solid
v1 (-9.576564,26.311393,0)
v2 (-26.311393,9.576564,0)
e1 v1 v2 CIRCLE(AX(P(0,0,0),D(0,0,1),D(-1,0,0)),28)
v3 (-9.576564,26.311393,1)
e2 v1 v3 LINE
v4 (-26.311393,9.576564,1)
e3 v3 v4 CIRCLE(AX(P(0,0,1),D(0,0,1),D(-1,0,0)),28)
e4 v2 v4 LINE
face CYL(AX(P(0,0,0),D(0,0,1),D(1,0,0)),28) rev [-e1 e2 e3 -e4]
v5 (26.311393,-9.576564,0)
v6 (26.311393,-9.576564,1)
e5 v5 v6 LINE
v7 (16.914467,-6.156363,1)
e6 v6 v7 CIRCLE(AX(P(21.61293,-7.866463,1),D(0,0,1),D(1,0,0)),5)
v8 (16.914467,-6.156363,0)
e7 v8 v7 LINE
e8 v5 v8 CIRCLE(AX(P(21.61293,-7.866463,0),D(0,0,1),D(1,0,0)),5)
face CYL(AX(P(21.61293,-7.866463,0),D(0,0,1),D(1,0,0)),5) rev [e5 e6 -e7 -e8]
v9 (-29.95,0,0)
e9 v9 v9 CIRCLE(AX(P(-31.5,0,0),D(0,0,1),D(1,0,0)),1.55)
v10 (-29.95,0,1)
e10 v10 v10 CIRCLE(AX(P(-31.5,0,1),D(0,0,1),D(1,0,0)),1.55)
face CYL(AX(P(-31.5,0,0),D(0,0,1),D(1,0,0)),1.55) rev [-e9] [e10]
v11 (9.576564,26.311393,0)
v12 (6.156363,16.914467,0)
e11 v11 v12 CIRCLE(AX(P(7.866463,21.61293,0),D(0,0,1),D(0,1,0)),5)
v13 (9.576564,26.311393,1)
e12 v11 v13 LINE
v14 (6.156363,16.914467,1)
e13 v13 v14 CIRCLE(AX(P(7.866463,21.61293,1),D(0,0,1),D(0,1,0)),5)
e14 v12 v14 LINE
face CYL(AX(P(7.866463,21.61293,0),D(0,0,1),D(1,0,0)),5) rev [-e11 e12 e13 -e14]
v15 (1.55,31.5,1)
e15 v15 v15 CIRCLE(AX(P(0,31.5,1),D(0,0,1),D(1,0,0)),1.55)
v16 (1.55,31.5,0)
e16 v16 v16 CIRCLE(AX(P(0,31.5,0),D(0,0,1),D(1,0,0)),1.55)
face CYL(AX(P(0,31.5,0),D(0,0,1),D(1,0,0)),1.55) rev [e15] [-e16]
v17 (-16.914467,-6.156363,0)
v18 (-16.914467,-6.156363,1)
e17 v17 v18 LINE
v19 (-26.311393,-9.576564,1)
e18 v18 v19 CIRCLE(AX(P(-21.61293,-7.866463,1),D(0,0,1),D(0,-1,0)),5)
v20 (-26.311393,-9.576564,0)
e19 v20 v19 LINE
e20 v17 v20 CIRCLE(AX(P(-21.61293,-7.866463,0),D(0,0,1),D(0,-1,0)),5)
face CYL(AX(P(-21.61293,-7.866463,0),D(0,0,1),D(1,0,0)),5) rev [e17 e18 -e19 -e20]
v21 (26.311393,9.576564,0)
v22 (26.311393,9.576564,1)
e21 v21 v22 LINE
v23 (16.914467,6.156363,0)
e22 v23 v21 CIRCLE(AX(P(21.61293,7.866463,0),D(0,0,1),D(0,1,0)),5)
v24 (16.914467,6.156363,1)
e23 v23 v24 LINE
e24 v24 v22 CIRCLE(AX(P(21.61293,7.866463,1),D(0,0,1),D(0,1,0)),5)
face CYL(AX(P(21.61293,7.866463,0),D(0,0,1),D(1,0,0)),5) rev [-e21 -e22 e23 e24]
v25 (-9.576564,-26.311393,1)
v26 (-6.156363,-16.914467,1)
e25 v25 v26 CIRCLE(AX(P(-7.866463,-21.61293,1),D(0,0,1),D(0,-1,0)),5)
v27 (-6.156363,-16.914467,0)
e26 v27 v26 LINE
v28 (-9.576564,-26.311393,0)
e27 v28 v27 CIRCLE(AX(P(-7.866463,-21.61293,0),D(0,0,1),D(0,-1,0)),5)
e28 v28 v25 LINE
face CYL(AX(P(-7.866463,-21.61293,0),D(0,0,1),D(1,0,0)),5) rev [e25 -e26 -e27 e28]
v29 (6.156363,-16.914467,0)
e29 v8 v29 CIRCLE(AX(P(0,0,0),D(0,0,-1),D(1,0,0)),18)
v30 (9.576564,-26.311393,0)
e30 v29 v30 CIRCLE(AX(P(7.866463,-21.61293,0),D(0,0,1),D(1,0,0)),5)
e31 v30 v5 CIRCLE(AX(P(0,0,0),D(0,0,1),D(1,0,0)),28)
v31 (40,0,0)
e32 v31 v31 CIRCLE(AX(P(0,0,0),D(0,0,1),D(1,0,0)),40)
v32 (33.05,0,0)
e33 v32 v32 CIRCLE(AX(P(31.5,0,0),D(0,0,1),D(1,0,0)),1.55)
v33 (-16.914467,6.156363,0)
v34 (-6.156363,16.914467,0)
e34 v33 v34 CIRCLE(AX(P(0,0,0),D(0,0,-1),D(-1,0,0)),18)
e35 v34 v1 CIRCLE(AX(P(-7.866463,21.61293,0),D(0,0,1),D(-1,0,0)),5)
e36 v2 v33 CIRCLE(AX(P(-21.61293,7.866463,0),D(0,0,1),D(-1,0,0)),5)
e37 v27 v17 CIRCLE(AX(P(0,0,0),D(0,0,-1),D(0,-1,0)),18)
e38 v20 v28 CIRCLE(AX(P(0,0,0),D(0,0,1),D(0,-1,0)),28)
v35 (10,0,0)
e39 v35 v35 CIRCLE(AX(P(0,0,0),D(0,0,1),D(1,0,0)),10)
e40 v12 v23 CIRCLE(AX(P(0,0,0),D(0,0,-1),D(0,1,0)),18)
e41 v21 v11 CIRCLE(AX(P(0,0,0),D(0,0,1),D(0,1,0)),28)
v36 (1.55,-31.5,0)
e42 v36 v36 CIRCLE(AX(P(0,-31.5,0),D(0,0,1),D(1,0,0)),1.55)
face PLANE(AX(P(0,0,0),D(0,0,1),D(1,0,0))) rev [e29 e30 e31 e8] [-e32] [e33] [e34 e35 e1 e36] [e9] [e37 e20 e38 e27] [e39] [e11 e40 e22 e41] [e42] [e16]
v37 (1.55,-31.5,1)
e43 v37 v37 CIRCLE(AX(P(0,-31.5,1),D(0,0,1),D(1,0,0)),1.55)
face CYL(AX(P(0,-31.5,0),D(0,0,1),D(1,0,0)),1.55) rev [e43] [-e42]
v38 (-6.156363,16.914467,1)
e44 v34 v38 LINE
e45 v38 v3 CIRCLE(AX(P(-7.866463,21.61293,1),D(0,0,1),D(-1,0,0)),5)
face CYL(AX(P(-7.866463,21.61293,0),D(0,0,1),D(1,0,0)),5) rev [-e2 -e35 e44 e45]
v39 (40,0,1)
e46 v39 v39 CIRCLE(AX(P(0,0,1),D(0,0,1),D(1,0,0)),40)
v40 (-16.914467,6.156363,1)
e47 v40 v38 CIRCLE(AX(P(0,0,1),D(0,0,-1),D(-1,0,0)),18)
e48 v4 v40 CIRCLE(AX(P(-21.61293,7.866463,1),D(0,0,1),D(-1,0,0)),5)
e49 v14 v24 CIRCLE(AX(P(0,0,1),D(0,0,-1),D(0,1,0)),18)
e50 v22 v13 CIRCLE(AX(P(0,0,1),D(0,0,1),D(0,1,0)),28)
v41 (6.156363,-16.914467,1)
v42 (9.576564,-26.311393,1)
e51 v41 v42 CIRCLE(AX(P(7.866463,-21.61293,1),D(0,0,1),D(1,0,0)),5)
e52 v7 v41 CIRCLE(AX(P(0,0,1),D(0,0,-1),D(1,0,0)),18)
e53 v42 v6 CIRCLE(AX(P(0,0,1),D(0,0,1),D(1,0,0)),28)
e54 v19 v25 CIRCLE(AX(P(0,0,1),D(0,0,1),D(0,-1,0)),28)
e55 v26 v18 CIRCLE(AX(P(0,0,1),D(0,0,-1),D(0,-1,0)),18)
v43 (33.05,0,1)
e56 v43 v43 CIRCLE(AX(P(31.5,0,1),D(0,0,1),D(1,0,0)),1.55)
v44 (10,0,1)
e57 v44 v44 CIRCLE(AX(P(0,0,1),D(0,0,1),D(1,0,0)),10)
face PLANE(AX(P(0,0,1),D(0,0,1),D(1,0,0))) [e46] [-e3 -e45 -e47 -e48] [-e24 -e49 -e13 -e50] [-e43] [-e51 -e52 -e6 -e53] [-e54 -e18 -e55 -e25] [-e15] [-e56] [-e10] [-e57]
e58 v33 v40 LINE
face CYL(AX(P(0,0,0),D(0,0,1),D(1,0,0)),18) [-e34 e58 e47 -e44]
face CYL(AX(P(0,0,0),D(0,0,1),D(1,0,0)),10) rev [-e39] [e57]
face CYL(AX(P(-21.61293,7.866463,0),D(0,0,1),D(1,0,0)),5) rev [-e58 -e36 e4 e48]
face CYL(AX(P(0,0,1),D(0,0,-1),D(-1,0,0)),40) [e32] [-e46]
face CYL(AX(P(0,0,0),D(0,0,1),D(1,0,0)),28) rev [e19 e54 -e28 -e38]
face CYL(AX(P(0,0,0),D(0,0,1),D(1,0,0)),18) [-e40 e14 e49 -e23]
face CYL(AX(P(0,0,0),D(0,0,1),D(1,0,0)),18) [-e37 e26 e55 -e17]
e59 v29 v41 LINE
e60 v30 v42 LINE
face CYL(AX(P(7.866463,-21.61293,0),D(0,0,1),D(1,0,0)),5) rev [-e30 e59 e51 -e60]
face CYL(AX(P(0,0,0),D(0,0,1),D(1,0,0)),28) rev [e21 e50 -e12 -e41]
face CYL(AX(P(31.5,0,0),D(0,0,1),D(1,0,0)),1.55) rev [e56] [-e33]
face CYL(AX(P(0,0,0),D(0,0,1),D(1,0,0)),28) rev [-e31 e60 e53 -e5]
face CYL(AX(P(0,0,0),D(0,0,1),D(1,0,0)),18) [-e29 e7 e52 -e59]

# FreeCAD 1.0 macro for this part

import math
import FreeCAD as App
import Part
import Sketcher

doc = App.newDocument("Part")
params = doc.addObject("Spreadsheet::Sheet", "Params")
for row, (alias, value) in enumerate([
    ("sketch1_diameter", "80 mm"),
    ("pad1_length", "1 mm"),
    ("sketch2_diameter", "3.1 mm"),
    ("pocket1_length", "1 mm"),
    ("sketch3_diameter", "20 mm"),
    ("pocket2_length", "1 mm"),
    ("sketch4_radius", "28 mm"),
    ("sketch4_radius2", "5 mm"),
    ("pocket3_length", "1 mm"),
], start=1):
    params.set(f"A{row}", alias)
    params.set(f"B{row}", "=" + value)
    params.setAlias(f"B{row}", alias)

body = doc.addObject("PartDesign::Body", "Body")

sketch1 = body.newObject("Sketcher::SketchObject", "Sketch")
sketch1.AttachmentSupport = (doc.getObject("XY_Plane"), [""])
sketch1.MapMode = "FlatFace"
sketch1.addGeometry(Part.Circle(App.Vector(0, 0, 0), App.Vector(0, 0, 1), 40), False)
sketch1.addConstraint(Sketcher.Constraint("Coincident", 0, 3, -1, 1))
sketch1.addConstraint(Sketcher.Constraint("Diameter", 0, 80.0))
sketch1.setExpression("Constraints[1]", "Params.sketch1_diameter")
pad1 = body.newObject("PartDesign::Pad", "Pad")
pad1.Profile = sketch1
pad1.setExpression("Length", "Params.pad1_length")

sketch2 = body.newObject("Sketcher::SketchObject", "Sketch001")
sketch2.AttachmentSupport = (doc.getObject("XY_Plane"), [""])
sketch2.MapMode = "FlatFace"
sketch2.AttachmentOffset = App.Placement(App.Vector(0, 0, 1), App.Rotation())
sketch2.addGeometry(Part.Circle(App.Vector(0, 31.5, 0), App.Vector(0, 0, 1), 1.6), False)
sketch2.addGeometry(Part.Circle(App.Vector(-31.5, 0, 0), App.Vector(0, 0, 1), 1.6), False)
sketch2.addGeometry(Part.Circle(App.Vector(0, -31.5, 0), App.Vector(0, 0, 1), 1.6), False)
sketch2.addGeometry(Part.Circle(App.Vector(31.5, 0, 0), App.Vector(0, 0, 1), 1.6), False)
sketch2.addConstraint(Sketcher.Constraint("Equal", 0, 1))
sketch2.addConstraint(Sketcher.Constraint("Equal", 1, 2))
sketch2.addConstraint(Sketcher.Constraint("Equal", 2, 3))
sketch2.addConstraint(Sketcher.Constraint("Symmetric", 0, 3, 2, 3, -1, 1))
sketch2.addConstraint(Sketcher.Constraint("Symmetric", 1, 3, 3, 3, -1, 1))
sketch2.addConstraint(Sketcher.Constraint("PointOnObject", 0, 3, -2))
sketch2.addConstraint(Sketcher.Constraint("PointOnObject", 1, 3, -1))
sketch2.addConstraint(Sketcher.Constraint("Diameter", 0, 3.1))
sketch2.addConstraint(Sketcher.Constraint("DistanceY", 2, 3, 0, 3, 63.0))
sketch2.addConstraint(Sketcher.Constraint("DistanceX", 1, 3, 3, 3, 63.0))
sketch2.setExpression("Constraints[7]", "Params.sketch2_diameter")
pocket1 = body.newObject("PartDesign::Pocket", "Pocket")
pocket1.Profile = sketch2
pocket1.setExpression("Length", "Params.pocket1_length")

sketch3 = body.newObject("Sketcher::SketchObject", "Sketch002")
sketch3.AttachmentSupport = (doc.getObject("XY_Plane"), [""])
sketch3.MapMode = "FlatFace"
sketch3.AttachmentOffset = App.Placement(App.Vector(0, 0, 1), App.Rotation())
sketch3.addGeometry(Part.Circle(App.Vector(0, 0, 0), App.Vector(0, 0, 1), 10), False)
sketch3.addConstraint(Sketcher.Constraint("Coincident", 0, 3, -1, 1))
sketch3.addConstraint(Sketcher.Constraint("Diameter", 0, 20.0))
sketch3.setExpression("Constraints[1]", "Params.sketch3_diameter")
pocket2 = body.newObject("PartDesign::Pocket", "Pocket001")
pocket2.Profile = sketch3
pocket2.setExpression("Length", "Params.pocket2_length")

sketch4 = body.newObject("Sketcher::SketchObject", "Sketch003")
sketch4.AttachmentSupport = (doc.getObject("XY_Plane"), [""])
sketch4.MapMode = "FlatFace"
sketch4.AttachmentOffset = App.Placement(App.Vector(0, 0, 1), App.Rotation())
sketch4.addGeometry(Part.ArcOfCircle(Part.Circle(App.Vector(0, 0, 0), App.Vector(0, 0, 1), 28), math.radians(-70), math.radians(-20)), False)
sketch4.addGeometry(Part.ArcOfCircle(Part.Circle(App.Vector(22, -8, 0), App.Vector(0, 0, 1), 5), math.radians(-20), math.radians(160)), False)
sketch4.addGeometry(Part.ArcOfCircle(Part.Circle(App.Vector(0, 0, 0), App.Vector(0, 0, 1), 18), math.radians(-70), math.radians(-20)), False)
sketch4.addGeometry(Part.ArcOfCircle(Part.Circle(App.Vector(8, -22, 0), App.Vector(0, 0, 1), 5), math.radians(110), math.radians(290)), False)
sketch4.addConstraint(Sketcher.Constraint("Tangent", 0, 2, 1, 1))
sketch4.addConstraint(Sketcher.Constraint("Tangent", 1, 2, 2, 2))
sketch4.addConstraint(Sketcher.Constraint("Tangent", 2, 1, 3, 1))
sketch4.addConstraint(Sketcher.Constraint("Tangent", 3, 2, 0, 1))
sketch4.addConstraint(Sketcher.Constraint("Coincident", 0, 3, -1, 1))
sketch4.addConstraint(Sketcher.Constraint("Coincident", 2, 3, -1, 1))
sketch4.addConstraint(Sketcher.Constraint("Radius", 0, 28.0))
sketch4.addConstraint(Sketcher.Constraint("Radius", 1, 5.0))
sketch4.addConstraint(Sketcher.Constraint("DistanceY", 0, 2, 1, 3, 1.710101))
sketch4.addConstraint(Sketcher.Constraint("DistanceX", 2, 1, 3, 3, 1.710101))
sketch4.setExpression("Constraints[6]", "Params.sketch4_radius")
sketch4.setExpression("Constraints[7]", "Params.sketch4_radius2")
pocket3 = body.newObject("PartDesign::Pocket", "Pocket002")
pocket3.Profile = sketch4
pocket3.setExpression("Length", "Params.pocket3_length")
doc.recompute()

polarpattern = body.newObject("PartDesign::PolarPattern", "PolarPattern")
polarpattern.Originals = [pocket3]
polarpattern.Axis = (doc.getObject("Z_Axis"), [""])
polarpattern.Angle = 360
polarpattern.Occurrences = 4
body.Tip = polarpattern

doc.recompute()
